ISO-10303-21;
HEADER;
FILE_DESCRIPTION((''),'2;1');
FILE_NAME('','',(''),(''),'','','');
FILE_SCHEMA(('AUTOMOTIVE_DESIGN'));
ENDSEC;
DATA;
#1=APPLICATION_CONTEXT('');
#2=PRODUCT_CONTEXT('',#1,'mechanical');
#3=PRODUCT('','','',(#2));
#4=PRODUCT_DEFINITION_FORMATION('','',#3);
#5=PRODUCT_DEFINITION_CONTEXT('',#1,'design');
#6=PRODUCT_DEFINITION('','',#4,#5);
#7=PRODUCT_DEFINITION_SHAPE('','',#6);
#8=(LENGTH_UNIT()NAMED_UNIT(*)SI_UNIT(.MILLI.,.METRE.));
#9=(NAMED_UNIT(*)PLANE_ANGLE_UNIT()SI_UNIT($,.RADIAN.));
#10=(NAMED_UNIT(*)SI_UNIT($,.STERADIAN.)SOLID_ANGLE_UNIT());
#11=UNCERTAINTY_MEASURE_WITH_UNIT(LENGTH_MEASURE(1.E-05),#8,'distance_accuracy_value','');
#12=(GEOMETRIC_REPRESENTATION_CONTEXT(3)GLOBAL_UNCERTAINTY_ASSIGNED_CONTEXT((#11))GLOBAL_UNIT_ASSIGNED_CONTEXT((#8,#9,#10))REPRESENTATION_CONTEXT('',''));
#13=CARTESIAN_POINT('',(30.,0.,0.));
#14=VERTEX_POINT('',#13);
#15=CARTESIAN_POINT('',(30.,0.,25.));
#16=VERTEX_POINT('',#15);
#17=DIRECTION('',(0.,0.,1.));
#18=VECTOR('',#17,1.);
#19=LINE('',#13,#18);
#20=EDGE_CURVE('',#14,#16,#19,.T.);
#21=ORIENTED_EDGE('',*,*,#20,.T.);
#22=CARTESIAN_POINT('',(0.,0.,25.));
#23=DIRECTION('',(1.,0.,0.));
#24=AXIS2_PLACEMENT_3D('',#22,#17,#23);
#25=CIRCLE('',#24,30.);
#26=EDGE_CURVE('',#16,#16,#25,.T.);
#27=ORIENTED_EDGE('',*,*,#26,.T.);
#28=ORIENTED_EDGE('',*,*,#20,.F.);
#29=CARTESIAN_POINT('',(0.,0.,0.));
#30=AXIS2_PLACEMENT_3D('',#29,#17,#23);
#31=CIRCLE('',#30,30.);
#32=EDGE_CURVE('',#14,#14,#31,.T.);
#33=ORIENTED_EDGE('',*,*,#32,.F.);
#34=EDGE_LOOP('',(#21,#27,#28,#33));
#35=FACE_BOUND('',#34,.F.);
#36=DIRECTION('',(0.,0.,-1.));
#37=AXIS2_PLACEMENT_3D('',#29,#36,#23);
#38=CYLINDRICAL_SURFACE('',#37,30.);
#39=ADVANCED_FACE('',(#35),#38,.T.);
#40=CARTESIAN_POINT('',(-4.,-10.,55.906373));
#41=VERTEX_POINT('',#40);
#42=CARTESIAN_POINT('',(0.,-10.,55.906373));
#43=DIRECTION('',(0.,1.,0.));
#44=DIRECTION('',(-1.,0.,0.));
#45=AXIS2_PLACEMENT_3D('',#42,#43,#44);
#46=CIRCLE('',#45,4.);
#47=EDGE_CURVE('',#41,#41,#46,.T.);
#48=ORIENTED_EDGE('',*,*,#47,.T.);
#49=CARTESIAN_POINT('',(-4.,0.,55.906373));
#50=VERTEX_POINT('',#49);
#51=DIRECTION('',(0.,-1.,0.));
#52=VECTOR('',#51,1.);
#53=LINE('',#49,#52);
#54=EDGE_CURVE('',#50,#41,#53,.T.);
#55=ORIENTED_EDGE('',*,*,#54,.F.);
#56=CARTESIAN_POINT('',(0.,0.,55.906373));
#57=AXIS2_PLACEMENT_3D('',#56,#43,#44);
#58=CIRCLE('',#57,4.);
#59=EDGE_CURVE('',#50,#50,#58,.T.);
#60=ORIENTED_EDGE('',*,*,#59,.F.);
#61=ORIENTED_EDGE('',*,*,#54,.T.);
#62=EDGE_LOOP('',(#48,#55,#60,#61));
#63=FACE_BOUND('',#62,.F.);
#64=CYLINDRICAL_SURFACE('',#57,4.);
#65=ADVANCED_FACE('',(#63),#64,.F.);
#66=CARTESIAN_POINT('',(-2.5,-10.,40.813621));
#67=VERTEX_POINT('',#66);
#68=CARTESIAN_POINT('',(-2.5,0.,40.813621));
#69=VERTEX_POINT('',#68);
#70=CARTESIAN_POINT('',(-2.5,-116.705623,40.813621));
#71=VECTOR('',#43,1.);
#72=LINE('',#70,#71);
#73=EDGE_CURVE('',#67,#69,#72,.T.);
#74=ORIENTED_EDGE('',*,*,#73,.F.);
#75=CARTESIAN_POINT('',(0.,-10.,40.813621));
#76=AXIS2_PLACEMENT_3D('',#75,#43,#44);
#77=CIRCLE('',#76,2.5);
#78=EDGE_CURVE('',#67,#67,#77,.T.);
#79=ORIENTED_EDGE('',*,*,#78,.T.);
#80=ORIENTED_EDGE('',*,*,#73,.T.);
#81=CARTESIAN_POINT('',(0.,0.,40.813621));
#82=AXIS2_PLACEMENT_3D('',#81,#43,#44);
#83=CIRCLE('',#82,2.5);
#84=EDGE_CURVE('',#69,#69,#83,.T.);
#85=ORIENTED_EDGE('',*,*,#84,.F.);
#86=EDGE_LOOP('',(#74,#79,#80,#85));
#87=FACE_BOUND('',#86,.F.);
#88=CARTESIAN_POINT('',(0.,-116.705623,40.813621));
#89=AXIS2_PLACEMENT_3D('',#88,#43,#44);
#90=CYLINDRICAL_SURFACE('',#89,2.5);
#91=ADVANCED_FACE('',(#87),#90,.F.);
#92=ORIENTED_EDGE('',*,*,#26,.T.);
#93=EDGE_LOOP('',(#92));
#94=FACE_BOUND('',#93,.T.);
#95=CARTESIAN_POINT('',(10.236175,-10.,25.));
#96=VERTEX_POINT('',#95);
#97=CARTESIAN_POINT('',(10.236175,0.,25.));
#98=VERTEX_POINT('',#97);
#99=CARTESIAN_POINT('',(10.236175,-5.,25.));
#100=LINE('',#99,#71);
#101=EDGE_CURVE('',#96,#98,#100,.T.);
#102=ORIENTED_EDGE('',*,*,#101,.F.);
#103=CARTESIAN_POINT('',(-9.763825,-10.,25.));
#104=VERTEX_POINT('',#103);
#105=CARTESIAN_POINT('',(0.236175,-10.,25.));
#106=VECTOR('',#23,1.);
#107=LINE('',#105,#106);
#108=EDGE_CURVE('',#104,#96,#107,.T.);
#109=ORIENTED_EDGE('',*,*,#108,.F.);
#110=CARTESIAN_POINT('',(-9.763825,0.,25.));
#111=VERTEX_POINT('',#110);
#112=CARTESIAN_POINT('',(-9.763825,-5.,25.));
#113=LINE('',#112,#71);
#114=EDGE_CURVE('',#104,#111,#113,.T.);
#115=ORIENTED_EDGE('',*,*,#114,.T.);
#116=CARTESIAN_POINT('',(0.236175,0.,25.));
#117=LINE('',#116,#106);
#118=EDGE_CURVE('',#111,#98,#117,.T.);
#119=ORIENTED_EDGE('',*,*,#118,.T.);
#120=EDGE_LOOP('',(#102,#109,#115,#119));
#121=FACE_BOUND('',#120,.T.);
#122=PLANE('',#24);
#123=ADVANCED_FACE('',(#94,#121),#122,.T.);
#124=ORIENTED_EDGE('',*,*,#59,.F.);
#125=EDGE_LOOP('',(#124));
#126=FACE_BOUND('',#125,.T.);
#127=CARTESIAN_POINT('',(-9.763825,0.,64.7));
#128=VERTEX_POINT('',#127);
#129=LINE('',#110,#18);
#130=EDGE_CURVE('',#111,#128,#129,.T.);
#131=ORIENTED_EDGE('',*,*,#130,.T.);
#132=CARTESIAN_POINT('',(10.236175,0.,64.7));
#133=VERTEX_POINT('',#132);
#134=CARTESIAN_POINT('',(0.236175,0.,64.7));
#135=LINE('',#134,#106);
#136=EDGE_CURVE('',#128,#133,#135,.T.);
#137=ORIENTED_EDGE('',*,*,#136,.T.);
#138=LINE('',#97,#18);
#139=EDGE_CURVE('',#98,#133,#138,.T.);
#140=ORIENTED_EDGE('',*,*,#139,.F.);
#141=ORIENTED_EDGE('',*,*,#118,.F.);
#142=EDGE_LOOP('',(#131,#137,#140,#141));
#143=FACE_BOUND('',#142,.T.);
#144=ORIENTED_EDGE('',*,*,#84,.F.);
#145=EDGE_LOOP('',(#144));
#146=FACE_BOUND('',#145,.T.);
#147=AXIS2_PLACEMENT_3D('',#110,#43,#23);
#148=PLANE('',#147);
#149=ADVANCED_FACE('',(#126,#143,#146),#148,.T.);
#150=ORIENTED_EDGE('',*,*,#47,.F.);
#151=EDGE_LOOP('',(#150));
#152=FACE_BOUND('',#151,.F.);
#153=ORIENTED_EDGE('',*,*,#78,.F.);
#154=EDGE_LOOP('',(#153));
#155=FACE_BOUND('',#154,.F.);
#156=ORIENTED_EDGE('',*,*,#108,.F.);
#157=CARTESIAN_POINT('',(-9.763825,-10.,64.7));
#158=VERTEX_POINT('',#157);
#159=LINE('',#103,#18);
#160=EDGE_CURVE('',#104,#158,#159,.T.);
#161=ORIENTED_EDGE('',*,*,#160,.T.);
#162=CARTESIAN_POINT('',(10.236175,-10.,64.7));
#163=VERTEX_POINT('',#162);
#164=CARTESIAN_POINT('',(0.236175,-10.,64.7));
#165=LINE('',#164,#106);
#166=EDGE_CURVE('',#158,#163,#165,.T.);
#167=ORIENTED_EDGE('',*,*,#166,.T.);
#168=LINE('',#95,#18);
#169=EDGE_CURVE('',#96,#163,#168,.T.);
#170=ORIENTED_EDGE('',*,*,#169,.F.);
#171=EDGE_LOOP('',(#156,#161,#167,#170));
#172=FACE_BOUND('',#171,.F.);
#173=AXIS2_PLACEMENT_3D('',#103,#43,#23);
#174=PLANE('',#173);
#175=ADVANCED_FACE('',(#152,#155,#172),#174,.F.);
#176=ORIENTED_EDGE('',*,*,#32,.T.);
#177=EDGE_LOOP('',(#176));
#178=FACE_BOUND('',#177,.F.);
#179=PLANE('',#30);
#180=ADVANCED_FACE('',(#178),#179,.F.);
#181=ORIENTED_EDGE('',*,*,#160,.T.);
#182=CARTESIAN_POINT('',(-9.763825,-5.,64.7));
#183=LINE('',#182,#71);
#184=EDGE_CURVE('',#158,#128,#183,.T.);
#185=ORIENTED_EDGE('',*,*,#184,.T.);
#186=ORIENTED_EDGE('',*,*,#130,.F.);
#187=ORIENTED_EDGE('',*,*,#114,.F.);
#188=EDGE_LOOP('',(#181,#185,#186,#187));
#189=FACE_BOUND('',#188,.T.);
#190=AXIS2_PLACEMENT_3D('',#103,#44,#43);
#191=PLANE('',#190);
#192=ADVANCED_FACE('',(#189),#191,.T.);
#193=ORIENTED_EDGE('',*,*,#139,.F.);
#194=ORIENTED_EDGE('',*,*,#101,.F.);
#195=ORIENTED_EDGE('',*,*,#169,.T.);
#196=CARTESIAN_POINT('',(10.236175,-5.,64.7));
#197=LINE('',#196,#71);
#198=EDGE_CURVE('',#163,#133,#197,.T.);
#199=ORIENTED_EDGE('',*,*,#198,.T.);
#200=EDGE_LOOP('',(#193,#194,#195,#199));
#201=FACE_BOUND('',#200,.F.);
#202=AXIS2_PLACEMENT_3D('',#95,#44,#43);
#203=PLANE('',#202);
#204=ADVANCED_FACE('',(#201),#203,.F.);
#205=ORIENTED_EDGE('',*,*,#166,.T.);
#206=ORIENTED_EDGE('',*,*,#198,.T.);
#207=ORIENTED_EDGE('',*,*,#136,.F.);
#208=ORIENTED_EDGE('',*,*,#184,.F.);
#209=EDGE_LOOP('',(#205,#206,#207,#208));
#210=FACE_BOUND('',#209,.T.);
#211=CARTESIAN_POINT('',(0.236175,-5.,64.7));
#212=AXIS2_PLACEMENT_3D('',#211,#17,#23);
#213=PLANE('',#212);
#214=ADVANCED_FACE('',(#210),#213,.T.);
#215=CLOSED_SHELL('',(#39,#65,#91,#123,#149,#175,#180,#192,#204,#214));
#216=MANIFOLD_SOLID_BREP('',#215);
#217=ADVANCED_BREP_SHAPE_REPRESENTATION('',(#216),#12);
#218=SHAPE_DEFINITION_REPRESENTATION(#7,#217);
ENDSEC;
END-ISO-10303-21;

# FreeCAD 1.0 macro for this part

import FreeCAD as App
import Part
import Sketcher

doc = App.newDocument("Part")
body = doc.addObject("PartDesign::Body", "Body")

# Sketch on XY plane
sketch1 = body.newObject("Sketcher::SketchObject", "Sketch")
sketch1.AttachmentSupport = (doc.getObject("XY_Plane"), [""])
sketch1.MapMode = "FlatFace"
sketch1.addGeometry(Part.Circle(App.Vector(0, 0, 0), App.Vector(0, 0, 1), 30), False)
sketch1.addConstraint([
    Sketcher.Constraint("Coincident", 0, 3, -1, 1),
    Sketcher.Constraint("Diameter", 0, 60.0),
])
pad1 = body.newObject("PartDesign::Pad", "Pad")
pad1.Profile = sketch1
pad1.Length = 25

# Sketch on XY plane
sketch2 = body.newObject("Sketcher::SketchObject", "Sketch001")
sketch2.AttachmentSupport = (doc.getObject("XY_Plane"), [""])
sketch2.MapMode = "FlatFace"
sketch2.AttachmentOffset = App.Placement(App.Vector(0, 0, 25), App.Rotation())
sketch2.addGeometry([
    Part.LineSegment(App.Vector(-9.763825, 0, 0), App.Vector(-9.763825, -10, 0)),
    Part.LineSegment(App.Vector(-9.763825, -10, 0), App.Vector(10.236175, -10, 0)),
    Part.LineSegment(App.Vector(10.236175, -10, 0), App.Vector(10.236175, 0, 0)),
    Part.LineSegment(App.Vector(10.236175, 0, 0), App.Vector(-9.763825, 0, 0)),
], False)
sketch2.addConstraint([
    Sketcher.Constraint("Coincident", 0, 2, 1, 1),
    Sketcher.Constraint("Coincident", 1, 2, 2, 1),
    Sketcher.Constraint("Coincident", 2, 2, 3, 1),
    Sketcher.Constraint("Coincident", 3, 2, 0, 1),
    Sketcher.Constraint("Vertical", 0),
    Sketcher.Constraint("Horizontal", 1),
    Sketcher.Constraint("Vertical", 2),
    Sketcher.Constraint("Horizontal", 3),
    Sketcher.Constraint("PointOnObject", 2, 2, -1),
    Sketcher.Constraint("DistanceX", 1, 1, 1, 2, 20.0),
    Sketcher.Constraint("DistanceY", 0, 2, 0, 1, 10.0),
    Sketcher.Constraint("DistanceX", 0, 2, -1, 1, 9.763825),
])
pad2 = body.newObject("PartDesign::Pad", "Pad001")
pad2.Profile = sketch2
pad2.Length = 39.7

# Sketch on XZ plane
sketch3 = body.newObject("Sketcher::SketchObject", "Sketch002")
sketch3.AttachmentSupport = (doc.getObject("XZ_Plane"), [""])
sketch3.MapMode = "FlatFace"
sketch3.addGeometry(Part.Circle(App.Vector(0, 55.906373, 0), App.Vector(0, 0, 1), 4), False)
sketch3.addConstraint([
    Sketcher.Constraint("PointOnObject", 0, 3, -2),
    Sketcher.Constraint("Diameter", 0, 8.0),
    Sketcher.Constraint("DistanceY", -1, 1, 0, 3, 55.906373),
])
pocket1 = body.newObject("PartDesign::Pocket", "Pocket")
pocket1.Profile = sketch3
pocket1.Length = 41.2
pocket1.Reversed = True

# Sketch on XZ plane
sketch4 = body.newObject("Sketcher::SketchObject", "Sketch003")
sketch4.AttachmentSupport = (doc.getObject("XZ_Plane"), [""])
sketch4.MapMode = "FlatFace"
sketch4.AttachmentOffset = App.Placement(App.Vector(0, 0, 10), App.Rotation())
sketch4.addGeometry(Part.Circle(App.Vector(0, 40.813621, 0), App.Vector(0, 0, 1), 2.5), False)
sketch4.addConstraint([
    Sketcher.Constraint("PointOnObject", 0, 3, -2),
    Sketcher.Constraint("Diameter", 0, 5.0),
    Sketcher.Constraint("DistanceY", -1, 1, 0, 3, 40.813621),
])
doc.recompute()
hole = body.newObject("PartDesign::Hole", "Hole")
hole.Profile = sketch4
hole.ThreadType = "None"
hole.Diameter = 5
hole.DepthType = "ThroughAll"

doc.recompute()
